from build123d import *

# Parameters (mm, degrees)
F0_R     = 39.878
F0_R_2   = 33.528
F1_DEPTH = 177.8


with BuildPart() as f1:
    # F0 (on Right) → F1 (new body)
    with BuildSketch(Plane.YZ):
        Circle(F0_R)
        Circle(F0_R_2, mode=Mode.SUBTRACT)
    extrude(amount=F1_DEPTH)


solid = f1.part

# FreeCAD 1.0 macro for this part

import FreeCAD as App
import Part
import Sketcher

V = App.Vector
Q = App.Units.Quantity

doc = App.newDocument("Part")
body = doc.addObject("PartDesign::Body", "Body")

sketch1 = body.newObject("Sketcher::SketchObject", "Sketch")
sketch1.AttachmentSupport = (doc.getObject("YZ_Plane"), [""])
sketch1.MapMode = "FlatFace"
sketch1.addGeometry([
    Part.Circle(V(0, 0, 0), V(0, 0, 1), 40),
    Part.Circle(V(0, 0, 0), V(0, 0, 1), 34),
], False)
sketch1.addConstraint([
    Sketcher.Constraint("Coincident", 0, 3, -1, 1),
    Sketcher.Constraint("Coincident", 1, 3, -1, 1),
    Sketcher.Constraint("Diameter", 0, Q("3.14 in")),
    Sketcher.Constraint("Diameter", 1, Q("2.64 in")),
])
pad1 = body.newObject("PartDesign::Pad", "Pad")
pad1.Profile = sketch1
pad1.Length = Q("7 in")

doc.recompute()
